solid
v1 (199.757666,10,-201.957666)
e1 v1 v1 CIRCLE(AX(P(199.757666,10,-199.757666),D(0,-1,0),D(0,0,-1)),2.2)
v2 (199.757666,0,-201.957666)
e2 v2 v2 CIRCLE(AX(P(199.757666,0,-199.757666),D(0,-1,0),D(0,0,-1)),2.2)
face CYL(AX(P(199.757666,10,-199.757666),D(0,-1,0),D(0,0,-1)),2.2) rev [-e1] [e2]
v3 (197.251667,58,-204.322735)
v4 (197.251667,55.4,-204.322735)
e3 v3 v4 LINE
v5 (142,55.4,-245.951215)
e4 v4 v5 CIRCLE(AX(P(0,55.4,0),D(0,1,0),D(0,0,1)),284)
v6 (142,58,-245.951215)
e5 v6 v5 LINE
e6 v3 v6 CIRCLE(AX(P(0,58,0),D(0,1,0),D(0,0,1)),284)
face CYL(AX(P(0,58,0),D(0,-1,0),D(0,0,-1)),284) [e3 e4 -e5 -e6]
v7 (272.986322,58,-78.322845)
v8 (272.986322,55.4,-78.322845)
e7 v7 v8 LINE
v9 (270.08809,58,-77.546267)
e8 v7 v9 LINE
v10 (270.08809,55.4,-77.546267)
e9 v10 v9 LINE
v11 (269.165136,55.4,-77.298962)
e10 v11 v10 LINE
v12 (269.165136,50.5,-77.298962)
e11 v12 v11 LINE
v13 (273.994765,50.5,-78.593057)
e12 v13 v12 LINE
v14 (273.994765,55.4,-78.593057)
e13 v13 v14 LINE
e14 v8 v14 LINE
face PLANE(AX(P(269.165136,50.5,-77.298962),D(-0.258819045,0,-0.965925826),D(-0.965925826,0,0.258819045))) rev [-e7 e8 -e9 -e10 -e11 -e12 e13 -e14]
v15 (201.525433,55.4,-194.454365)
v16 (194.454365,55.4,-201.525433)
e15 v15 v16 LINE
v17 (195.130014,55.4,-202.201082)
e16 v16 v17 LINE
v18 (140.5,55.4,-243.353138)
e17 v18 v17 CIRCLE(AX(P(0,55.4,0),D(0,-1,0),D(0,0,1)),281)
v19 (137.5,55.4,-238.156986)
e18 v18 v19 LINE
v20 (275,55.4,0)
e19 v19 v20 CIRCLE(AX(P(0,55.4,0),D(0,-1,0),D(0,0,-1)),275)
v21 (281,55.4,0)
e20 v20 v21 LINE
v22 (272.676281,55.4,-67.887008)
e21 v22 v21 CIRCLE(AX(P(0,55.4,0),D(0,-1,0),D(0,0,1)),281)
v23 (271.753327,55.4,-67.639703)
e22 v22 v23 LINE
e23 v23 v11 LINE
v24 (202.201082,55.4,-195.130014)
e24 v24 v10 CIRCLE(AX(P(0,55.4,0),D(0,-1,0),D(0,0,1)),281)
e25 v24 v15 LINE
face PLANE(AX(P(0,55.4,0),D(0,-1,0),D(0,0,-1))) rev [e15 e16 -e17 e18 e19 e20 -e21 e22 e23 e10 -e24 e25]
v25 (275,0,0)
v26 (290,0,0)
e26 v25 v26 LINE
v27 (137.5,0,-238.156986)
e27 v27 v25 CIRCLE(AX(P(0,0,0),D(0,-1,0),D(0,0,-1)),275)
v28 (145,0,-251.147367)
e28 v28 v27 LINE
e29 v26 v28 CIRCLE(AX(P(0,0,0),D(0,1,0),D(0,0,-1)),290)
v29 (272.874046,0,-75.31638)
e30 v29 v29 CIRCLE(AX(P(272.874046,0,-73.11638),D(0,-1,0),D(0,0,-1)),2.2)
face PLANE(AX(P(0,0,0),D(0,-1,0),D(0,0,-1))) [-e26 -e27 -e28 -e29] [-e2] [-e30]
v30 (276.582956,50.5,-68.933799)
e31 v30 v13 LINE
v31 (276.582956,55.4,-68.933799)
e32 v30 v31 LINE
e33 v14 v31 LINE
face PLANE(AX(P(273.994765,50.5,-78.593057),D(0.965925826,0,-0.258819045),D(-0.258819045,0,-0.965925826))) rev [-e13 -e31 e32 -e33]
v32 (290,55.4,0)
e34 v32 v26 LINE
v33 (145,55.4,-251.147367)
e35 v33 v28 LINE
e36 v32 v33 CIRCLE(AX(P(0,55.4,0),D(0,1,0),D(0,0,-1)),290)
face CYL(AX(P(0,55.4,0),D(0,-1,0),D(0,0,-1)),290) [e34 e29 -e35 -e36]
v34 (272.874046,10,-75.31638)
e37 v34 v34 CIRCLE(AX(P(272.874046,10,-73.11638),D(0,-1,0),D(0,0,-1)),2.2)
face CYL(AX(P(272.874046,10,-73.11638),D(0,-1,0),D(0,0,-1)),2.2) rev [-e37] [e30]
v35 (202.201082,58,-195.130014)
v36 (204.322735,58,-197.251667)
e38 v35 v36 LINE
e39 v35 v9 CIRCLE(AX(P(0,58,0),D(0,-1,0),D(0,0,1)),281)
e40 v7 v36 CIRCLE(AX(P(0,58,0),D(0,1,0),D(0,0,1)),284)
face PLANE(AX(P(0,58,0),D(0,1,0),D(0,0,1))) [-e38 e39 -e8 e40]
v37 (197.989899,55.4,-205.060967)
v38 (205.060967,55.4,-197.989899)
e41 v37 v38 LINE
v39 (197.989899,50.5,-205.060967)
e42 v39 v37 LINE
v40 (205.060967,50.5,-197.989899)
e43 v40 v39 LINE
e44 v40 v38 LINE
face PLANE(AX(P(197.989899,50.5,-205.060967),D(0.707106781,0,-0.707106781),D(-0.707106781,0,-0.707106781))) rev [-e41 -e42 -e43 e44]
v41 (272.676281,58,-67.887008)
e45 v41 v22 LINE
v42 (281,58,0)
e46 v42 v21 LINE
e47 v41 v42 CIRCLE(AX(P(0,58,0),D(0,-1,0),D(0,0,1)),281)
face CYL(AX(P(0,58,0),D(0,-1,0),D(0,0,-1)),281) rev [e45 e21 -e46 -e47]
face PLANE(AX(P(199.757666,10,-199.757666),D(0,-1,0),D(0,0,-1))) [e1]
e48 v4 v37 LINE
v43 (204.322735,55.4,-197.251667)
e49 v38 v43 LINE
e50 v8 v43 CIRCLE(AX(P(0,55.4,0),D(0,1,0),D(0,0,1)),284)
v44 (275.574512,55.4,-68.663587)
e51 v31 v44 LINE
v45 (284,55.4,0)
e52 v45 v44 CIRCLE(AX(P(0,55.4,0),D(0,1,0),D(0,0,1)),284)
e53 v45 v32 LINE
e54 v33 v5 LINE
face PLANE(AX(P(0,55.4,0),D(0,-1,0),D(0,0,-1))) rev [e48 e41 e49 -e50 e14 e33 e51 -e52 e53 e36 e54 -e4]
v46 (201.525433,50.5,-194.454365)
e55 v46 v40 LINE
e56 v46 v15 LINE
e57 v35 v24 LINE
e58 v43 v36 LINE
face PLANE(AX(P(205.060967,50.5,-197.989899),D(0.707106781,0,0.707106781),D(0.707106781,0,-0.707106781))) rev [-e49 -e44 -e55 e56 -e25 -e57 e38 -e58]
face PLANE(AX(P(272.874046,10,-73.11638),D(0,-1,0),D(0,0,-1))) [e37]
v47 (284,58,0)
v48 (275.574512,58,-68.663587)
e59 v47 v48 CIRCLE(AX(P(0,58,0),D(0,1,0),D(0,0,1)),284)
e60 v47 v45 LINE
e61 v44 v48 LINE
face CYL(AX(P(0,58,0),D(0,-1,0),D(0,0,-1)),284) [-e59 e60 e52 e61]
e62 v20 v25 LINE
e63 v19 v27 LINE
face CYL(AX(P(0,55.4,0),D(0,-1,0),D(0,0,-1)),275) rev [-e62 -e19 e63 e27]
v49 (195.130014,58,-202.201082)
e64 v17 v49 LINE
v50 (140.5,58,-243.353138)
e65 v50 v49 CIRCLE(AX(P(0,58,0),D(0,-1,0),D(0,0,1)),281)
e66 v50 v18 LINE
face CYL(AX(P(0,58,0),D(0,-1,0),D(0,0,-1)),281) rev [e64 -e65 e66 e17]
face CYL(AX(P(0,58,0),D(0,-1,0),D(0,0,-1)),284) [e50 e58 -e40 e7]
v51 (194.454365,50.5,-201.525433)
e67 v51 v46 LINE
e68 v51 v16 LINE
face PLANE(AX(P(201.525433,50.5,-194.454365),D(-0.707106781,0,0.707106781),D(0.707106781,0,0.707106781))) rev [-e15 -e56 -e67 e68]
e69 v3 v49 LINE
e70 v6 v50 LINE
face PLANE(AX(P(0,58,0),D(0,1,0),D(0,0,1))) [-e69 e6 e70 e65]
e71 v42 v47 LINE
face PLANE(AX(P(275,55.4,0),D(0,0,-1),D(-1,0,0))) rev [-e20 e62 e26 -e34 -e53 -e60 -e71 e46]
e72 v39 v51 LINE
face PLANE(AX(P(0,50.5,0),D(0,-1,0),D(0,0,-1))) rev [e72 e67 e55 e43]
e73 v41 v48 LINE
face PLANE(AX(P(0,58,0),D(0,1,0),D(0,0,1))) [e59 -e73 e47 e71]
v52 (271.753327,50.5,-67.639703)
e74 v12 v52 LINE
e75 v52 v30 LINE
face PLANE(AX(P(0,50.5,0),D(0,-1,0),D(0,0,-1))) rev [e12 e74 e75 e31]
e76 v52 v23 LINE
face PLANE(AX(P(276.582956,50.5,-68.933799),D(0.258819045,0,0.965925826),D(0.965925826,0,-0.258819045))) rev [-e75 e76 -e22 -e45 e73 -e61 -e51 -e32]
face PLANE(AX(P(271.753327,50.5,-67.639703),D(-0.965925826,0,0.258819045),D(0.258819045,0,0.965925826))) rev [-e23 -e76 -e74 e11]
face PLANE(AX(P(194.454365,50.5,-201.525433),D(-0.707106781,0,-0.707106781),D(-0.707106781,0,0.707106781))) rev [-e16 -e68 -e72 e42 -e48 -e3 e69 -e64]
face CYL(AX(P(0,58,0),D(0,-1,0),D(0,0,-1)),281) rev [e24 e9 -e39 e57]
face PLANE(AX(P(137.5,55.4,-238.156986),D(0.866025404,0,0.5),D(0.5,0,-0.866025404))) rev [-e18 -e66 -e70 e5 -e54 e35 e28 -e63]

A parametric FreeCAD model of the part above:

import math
import FreeCAD as App
import Part
import Sketcher
from FreeCAD import Vector
Q = App.Units.Quantity

doc = App.newDocument("Part")
body = doc.addObject("PartDesign::Body", "Body")

# Sketch on XZ plane
sketch1 = doc.addObject("Sketcher::SketchObject", "Sketch")
body.addObject(sketch1)
sketch1.AttachmentSupport = (doc.XZ_Plane, [""])
sketch1.MapMode = "FlatFace"
sketch1.addGeometry([
    Part.LineSegment(Vector(145, -251.147367, 0), Vector(137.5, -238.156986, 0)),
    Part.ArcOfCircle(Part.Circle(Vector(0, 0, 0), Vector(0, 0, 1), 275), math.radians(-60), math.radians(0)),
    Part.LineSegment(Vector(275, 0, 0), Vector(290, 0, 0)),
    Part.ArcOfCircle(Part.Circle(Vector(0, 0, 0), Vector(0, 0, 1), 290), math.radians(-60), math.radians(0)),
], False)
sketch1.addConstraint([
    Sketcher.Constraint("Coincident", 0, 2, 1, 1),
    Sketcher.Constraint("Coincident", 1, 2, 2, 1),
    Sketcher.Constraint("Coincident", 2, 2, 3, 2),
    Sketcher.Constraint("Coincident", 3, 1, 0, 1),
    Sketcher.Constraint("Horizontal", 2),
    Sketcher.Constraint("Coincident", 1, 3, -1, 1),
    Sketcher.Constraint("Coincident", 3, 3, -1, 1),
    Sketcher.Constraint("PointOnObject", 1, 2, -1),
    Sketcher.Constraint("Radius", 1, 275.0),
    Sketcher.Constraint("Radius", 3, 290.0),
    Sketcher.Constraint("Angle", 0, Q("120 deg")),
    Sketcher.Constraint("DistanceX", -1, 1, 3, 1, 145.0),
])
pad1 = doc.addObject("PartDesign::Pad", "Pad")
body.addObject(pad1)
pad1.Profile = sketch1
pad1.Length = 55.4
pad1.Reversed = True

# Sketch on XZ plane
sketch2 = doc.addObject("Sketcher::SketchObject", "Sketch001")
body.addObject(sketch2)
sketch2.AttachmentSupport = (doc.XZ_Plane, [""])
sketch2.MapMode = "FlatFace"
sketch2.AttachmentOffset = App.Placement(Vector(0, 0, -55.4), App.Rotation())
sketch2.addGeometry([
    Part.LineSegment(Vector(142, -245.951215, 0), Vector(140.5, -243.353138, 0)),
    Part.ArcOfCircle(Part.Circle(Vector(0, 0, 0), Vector(0, 0, 1), 281), math.radians(-60), math.radians(0)),
    Part.LineSegment(Vector(281, 0, 0), Vector(284, 0, 0)),
    Part.ArcOfCircle(Part.Circle(Vector(0, 0, 0), Vector(0, 0, 1), 284), math.radians(-60), math.radians(0)),
], False)
sketch2.addConstraint([
    Sketcher.Constraint("Coincident", 0, 2, 1, 1),
    Sketcher.Constraint("Coincident", 1, 2, 2, 1),
    Sketcher.Constraint("Coincident", 2, 2, 3, 2),
    Sketcher.Constraint("Coincident", 3, 1, 0, 1),
    Sketcher.Constraint("Horizontal", 2),
    Sketcher.Constraint("Coincident", 1, 3, -1, 1),
    Sketcher.Constraint("Coincident", 3, 3, -1, 1),
    Sketcher.Constraint("PointOnObject", 1, 2, -1),
    Sketcher.Constraint("Radius", 1, 281.0),
    Sketcher.Constraint("Radius", 3, 284.0),
    Sketcher.Constraint("Angle", 0, Q("120 deg")),
    Sketcher.Constraint("DistanceX", -1, 1, 3, 1, 142.0),
])
pad2 = doc.addObject("PartDesign::Pad", "Pad001")
body.addObject(pad2)
pad2.Profile = sketch2
pad2.Length = 2.6
pad2.Reversed = True

# Sketch on XZ plane
sketch3 = doc.addObject("Sketcher::SketchObject", "Sketch002")
body.addObject(sketch3)
sketch3.AttachmentSupport = (doc.XZ_Plane, [""])
sketch3.MapMode = "FlatFace"
sketch3.AttachmentOffset = App.Placement(Vector(0, 0, -58), App.Rotation())
sketch3.addGeometry([
    Part.LineSegment(Vector(273.994765, -78.593057, 0), Vector(269.165136, -77.298962, 0)),  # 0
    Part.LineSegment(Vector(269.165136, -77.298962, 0), Vector(271.753327, -67.639703, 0)),  # 1
    Part.LineSegment(Vector(271.753327, -67.639703, 0), Vector(276.582956, -68.933799, 0)),  # 2
    Part.LineSegment(Vector(276.582956, -68.933799, 0), Vector(273.994765, -78.593057, 0)),  # 3
    Part.LineSegment(Vector(197.989899, -205.060967, 0), Vector(194.454365, -201.525433, 0)),  # 4
    Part.LineSegment(Vector(194.454365, -201.525433, 0), Vector(201.525433, -194.454365, 0)),  # 5
    Part.LineSegment(Vector(201.525433, -194.454365, 0), Vector(205.060967, -197.989899, 0)),  # 6
    Part.LineSegment(Vector(205.060967, -197.989899, 0), Vector(197.989899, -205.060967, 0)),  # 7
], False)
sketch3.addConstraint([
    Sketcher.Constraint("Coincident", 0, 2, 1, 1),
    Sketcher.Constraint("Coincident", 1, 2, 2, 1),
    Sketcher.Constraint("Coincident", 2, 2, 3, 1),
    Sketcher.Constraint("Coincident", 3, 2, 0, 1),
    Sketcher.Constraint("Coincident", 4, 2, 5, 1),
    Sketcher.Constraint("Coincident", 5, 2, 6, 1),
    Sketcher.Constraint("Coincident", 6, 2, 7, 1),
    Sketcher.Constraint("Coincident", 7, 2, 4, 1),
    Sketcher.Constraint("Perpendicular", 0, 1),
    Sketcher.Constraint("Perpendicular", 1, 2),
    Sketcher.Constraint("Perpendicular", 2, 3),
    Sketcher.Constraint("Perpendicular", 4, 5),
    Sketcher.Constraint("Perpendicular", 5, 6),
    Sketcher.Constraint("Perpendicular", 6, 7),
    Sketcher.Constraint("Equal", 2, 4),
    Sketcher.Constraint("Equal", 3, 5),
    Sketcher.Constraint("Angle", 0, Q("165 deg")),
    Sketcher.Constraint("Angle", 4, Q("135 deg")),
    Sketcher.Constraint("Distance", 0, 5.0),
    Sketcher.Constraint("Distance", 1, 10.0),
    Sketcher.Constraint("DistanceY", 2, 2, -1, 1, 68.933799),
    Sketcher.Constraint("DistanceY", 6, 2, -1, 1, 197.989899),
    Sketcher.Constraint("DistanceX", -1, 1, 7, 2, 197.989899),
    Sketcher.Constraint("DistanceX", 4, 2, 3, 2, 79.5404),
])
pocket1 = doc.addObject("PartDesign::Pocket", "Pocket")
body.addObject(pocket1)
pocket1.Profile = sketch3
pocket1.Length = 7.5
pocket1.Reversed = True

# Sketch on XZ plane
sketch4 = doc.addObject("Sketcher::SketchObject", "Sketch003")
body.addObject(sketch4)
sketch4.AttachmentSupport = (doc.XZ_Plane, [""])
sketch4.MapMode = "FlatFace"
sketch4.addGeometry([
    Part.Circle(Vector(199.757666, -199.757666, 0), Vector(0, 0, 1), 2.2),
    Part.Circle(Vector(272.874046, -73.11638, 0), Vector(0, 0, 1), 2.2),
], False)
sketch4.addConstraint([
    Sketcher.Constraint("Equal", 0, 1),
    Sketcher.Constraint("Diameter", 0, 4.4),
    Sketcher.Constraint("DistanceY", 1, 3, -1, 1, 73.11638),
    Sketcher.Constraint("DistanceX", 0, 3, 1, 3, 73.11638),
    Sketcher.Constraint("DistanceX", -1, 1, 0, 3, 199.757666),
    Sketcher.Constraint("DistanceY", 0, 3, -1, 1, 199.757666),
])
pocket2 = doc.addObject("PartDesign::Pocket", "Pocket001")
body.addObject(pocket2)
pocket2.Profile = sketch4
pocket2.Length = 10

doc.recompute()
